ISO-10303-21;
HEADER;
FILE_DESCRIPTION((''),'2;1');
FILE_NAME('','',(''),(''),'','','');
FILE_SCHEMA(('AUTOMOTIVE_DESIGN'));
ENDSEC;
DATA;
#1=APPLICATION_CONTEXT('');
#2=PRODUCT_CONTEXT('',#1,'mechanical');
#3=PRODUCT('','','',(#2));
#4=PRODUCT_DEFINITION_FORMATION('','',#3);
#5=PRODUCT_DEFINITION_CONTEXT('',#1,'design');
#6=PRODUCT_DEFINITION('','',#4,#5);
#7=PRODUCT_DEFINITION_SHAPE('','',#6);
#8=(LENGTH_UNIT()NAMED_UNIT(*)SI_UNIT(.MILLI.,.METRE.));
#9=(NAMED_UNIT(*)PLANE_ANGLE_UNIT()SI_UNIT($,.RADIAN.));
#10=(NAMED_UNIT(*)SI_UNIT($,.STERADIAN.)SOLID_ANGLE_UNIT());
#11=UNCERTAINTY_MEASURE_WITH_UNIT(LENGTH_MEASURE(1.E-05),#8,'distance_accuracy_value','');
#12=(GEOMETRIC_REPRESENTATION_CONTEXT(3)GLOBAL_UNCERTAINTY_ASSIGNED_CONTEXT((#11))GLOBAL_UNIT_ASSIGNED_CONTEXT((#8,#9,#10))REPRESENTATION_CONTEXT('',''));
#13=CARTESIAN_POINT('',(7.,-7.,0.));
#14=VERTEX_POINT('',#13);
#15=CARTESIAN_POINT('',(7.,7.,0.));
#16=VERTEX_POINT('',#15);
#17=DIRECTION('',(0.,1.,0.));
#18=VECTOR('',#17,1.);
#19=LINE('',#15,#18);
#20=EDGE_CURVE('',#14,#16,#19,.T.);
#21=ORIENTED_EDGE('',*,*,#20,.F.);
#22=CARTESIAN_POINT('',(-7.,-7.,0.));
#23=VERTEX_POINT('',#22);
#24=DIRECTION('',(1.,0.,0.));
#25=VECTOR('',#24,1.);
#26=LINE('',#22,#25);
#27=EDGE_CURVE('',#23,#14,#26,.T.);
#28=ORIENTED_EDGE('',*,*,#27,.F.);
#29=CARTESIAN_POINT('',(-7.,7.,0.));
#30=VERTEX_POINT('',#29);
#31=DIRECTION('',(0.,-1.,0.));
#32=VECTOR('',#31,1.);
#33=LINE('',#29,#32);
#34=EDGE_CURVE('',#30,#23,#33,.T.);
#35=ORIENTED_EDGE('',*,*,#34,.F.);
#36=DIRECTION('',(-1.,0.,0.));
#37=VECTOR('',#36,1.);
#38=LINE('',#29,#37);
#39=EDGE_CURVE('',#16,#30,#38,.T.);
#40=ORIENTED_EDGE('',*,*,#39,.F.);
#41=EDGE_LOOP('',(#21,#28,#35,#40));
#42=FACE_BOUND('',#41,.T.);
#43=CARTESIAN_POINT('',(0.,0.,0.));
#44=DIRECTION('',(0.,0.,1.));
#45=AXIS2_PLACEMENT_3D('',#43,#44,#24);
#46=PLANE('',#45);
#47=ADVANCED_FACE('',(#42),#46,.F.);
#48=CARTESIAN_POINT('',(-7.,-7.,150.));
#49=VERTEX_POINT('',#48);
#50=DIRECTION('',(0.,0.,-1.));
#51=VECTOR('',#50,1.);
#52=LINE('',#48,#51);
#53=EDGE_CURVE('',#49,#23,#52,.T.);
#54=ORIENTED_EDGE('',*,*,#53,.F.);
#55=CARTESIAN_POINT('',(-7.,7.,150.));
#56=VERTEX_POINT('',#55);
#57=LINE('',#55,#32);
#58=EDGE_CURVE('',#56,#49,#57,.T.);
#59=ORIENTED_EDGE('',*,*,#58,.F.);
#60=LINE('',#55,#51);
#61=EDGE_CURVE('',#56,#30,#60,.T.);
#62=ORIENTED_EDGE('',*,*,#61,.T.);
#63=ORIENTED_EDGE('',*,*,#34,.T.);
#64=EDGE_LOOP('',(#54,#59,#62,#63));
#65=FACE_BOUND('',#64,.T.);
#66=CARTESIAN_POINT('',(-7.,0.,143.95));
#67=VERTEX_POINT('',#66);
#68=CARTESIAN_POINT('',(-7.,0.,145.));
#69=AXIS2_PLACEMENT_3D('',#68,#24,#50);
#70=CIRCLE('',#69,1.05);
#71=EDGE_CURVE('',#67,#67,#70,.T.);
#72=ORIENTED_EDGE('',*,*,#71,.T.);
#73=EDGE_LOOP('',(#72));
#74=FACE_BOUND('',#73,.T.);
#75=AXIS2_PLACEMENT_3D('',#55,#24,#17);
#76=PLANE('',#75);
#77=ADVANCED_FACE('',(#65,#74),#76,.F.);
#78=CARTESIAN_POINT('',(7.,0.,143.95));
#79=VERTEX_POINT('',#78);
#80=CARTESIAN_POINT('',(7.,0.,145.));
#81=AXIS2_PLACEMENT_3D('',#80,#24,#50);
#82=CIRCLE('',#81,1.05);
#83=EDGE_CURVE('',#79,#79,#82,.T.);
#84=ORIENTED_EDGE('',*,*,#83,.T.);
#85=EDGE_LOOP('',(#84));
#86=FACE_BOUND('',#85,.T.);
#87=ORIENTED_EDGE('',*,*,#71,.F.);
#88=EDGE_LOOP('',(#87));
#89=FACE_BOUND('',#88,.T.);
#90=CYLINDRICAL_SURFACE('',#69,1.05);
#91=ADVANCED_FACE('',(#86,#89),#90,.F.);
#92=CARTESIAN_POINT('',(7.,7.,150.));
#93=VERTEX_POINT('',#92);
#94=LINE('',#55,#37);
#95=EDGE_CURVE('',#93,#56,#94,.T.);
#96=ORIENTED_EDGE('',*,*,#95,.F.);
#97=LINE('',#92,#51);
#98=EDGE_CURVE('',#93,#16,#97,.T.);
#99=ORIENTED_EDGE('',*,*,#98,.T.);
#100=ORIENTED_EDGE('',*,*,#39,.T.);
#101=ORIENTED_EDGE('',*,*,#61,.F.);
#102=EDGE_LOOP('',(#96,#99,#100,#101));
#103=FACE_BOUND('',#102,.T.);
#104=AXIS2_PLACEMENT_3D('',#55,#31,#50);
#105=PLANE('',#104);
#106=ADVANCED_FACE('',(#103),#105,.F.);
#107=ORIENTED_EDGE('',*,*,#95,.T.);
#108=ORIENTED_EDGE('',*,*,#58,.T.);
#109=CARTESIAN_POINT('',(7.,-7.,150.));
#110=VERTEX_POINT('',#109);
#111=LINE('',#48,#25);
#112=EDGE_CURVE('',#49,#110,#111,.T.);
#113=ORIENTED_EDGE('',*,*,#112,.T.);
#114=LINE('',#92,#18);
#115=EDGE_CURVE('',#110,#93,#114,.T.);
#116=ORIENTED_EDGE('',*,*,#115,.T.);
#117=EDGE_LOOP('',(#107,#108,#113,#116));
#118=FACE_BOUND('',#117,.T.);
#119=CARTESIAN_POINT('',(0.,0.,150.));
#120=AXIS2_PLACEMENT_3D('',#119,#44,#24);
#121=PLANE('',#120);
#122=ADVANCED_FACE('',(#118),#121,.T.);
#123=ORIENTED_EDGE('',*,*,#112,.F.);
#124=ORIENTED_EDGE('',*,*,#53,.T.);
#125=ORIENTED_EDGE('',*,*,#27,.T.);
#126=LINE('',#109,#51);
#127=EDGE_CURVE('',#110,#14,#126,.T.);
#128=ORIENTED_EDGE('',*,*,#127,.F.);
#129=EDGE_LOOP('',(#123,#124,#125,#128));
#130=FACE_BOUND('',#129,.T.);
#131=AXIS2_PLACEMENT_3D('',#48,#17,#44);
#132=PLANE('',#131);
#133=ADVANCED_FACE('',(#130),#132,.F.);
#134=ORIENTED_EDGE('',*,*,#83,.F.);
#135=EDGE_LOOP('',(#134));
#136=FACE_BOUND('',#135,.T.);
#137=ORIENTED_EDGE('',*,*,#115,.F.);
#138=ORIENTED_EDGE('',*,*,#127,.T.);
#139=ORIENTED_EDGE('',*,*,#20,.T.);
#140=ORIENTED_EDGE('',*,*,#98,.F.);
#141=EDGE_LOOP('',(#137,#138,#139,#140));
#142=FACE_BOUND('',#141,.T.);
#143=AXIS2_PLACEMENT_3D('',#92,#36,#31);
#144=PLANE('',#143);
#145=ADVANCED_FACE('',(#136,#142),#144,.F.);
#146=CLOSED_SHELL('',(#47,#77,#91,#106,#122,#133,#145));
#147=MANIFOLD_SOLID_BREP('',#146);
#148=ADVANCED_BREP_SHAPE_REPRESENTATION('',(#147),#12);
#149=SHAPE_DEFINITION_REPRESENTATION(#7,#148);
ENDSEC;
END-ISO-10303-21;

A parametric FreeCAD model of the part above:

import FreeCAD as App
import Part
import Sketcher
from FreeCAD import Vector
Q = App.Units.Quantity


def add_polygon(sketch, points):
    """Adds a closed chain of lines whose ends are joined by coincident constraints."""
    first, n = sketch.GeometryCount, len(points)
    for a, b in zip(points, points[1:] + points[:1]):
        sketch.addGeometry(Part.LineSegment(App.Vector(*a, 0), App.Vector(*b, 0)), False)
    for i in range(n):
        sketch.addConstraint(Sketcher.Constraint("Coincident", first + i, 2, first + (i + 1) % n, 1))

doc = App.newDocument("Part")
params = doc.addObject("Spreadsheet::Sheet", "Params")
for row, (alias, value) in enumerate([
    ("sketch1_width", "14 mm"),
    ("pad1_length", "150 mm"),
    ("sketch2_diameter", "2.1 mm"),
], start=1):
    params.set(f"A{row}", alias)
    params.set(f"B{row}", "=" + value)
    params.setAlias(f"B{row}", alias)

body = doc.addObject("PartDesign::Body", "Body")

# Sketch on XY plane
sketch1 = body.newObject("Sketcher::SketchObject", "Sketch")
sketch1.AttachmentSupport = (doc.getObject("XY_Plane"), [""])
sketch1.MapMode = "FlatFace"
add_polygon(sketch1, [(-7, 7), (-7, -7), (7, -7), (7, 7)])  # lines 0-3
sketch1.addConstraint([
    Sketcher.Constraint("Vertical", 0),
    Sketcher.Constraint("Horizontal", 1),
    Sketcher.Constraint("Vertical", 2),
    Sketcher.Constraint("Horizontal", 3),
    Sketcher.Constraint("Symmetric", 0, 2, 2, 2, -1, 1),
    Sketcher.Constraint("Equal", 3, 0),
    Sketcher.Constraint("DistanceX", 1, 1, 1, 2, Q("14 mm")),
])
sketch1.setExpression("Constraints[10]", "Params.sketch1_width")
pad1 = body.newObject("PartDesign::Pad", "Pad")
pad1.Profile = sketch1
pad1.setExpression("Length", "Params.pad1_length")

# Sketch on YZ plane
sketch2 = body.newObject("Sketcher::SketchObject", "Sketch001")
sketch2.AttachmentSupport = (doc.getObject("YZ_Plane"), [""])
sketch2.MapMode = "FlatFace"
sketch2.addGeometry(Part.Circle(Vector(0, 145, 0), Vector(0, 0, 1), 1.05), False)
sketch2.addConstraint([
    Sketcher.Constraint("PointOnObject", 0, 3, -2),
    Sketcher.Constraint("Diameter", 0, Q("2.1 mm")),
    Sketcher.Constraint("DistanceY", -1, 1, 0, 3, Q("145 mm")),
])
sketch2.setExpression("Constraints[1]", "Params.sketch2_diameter")
pocket1 = body.newObject("PartDesign::Pocket", "Pocket")
pocket1.Profile = sketch2
pocket1.Type = "ThroughAll"
pocket1.Midplane = True

doc.recompute()
